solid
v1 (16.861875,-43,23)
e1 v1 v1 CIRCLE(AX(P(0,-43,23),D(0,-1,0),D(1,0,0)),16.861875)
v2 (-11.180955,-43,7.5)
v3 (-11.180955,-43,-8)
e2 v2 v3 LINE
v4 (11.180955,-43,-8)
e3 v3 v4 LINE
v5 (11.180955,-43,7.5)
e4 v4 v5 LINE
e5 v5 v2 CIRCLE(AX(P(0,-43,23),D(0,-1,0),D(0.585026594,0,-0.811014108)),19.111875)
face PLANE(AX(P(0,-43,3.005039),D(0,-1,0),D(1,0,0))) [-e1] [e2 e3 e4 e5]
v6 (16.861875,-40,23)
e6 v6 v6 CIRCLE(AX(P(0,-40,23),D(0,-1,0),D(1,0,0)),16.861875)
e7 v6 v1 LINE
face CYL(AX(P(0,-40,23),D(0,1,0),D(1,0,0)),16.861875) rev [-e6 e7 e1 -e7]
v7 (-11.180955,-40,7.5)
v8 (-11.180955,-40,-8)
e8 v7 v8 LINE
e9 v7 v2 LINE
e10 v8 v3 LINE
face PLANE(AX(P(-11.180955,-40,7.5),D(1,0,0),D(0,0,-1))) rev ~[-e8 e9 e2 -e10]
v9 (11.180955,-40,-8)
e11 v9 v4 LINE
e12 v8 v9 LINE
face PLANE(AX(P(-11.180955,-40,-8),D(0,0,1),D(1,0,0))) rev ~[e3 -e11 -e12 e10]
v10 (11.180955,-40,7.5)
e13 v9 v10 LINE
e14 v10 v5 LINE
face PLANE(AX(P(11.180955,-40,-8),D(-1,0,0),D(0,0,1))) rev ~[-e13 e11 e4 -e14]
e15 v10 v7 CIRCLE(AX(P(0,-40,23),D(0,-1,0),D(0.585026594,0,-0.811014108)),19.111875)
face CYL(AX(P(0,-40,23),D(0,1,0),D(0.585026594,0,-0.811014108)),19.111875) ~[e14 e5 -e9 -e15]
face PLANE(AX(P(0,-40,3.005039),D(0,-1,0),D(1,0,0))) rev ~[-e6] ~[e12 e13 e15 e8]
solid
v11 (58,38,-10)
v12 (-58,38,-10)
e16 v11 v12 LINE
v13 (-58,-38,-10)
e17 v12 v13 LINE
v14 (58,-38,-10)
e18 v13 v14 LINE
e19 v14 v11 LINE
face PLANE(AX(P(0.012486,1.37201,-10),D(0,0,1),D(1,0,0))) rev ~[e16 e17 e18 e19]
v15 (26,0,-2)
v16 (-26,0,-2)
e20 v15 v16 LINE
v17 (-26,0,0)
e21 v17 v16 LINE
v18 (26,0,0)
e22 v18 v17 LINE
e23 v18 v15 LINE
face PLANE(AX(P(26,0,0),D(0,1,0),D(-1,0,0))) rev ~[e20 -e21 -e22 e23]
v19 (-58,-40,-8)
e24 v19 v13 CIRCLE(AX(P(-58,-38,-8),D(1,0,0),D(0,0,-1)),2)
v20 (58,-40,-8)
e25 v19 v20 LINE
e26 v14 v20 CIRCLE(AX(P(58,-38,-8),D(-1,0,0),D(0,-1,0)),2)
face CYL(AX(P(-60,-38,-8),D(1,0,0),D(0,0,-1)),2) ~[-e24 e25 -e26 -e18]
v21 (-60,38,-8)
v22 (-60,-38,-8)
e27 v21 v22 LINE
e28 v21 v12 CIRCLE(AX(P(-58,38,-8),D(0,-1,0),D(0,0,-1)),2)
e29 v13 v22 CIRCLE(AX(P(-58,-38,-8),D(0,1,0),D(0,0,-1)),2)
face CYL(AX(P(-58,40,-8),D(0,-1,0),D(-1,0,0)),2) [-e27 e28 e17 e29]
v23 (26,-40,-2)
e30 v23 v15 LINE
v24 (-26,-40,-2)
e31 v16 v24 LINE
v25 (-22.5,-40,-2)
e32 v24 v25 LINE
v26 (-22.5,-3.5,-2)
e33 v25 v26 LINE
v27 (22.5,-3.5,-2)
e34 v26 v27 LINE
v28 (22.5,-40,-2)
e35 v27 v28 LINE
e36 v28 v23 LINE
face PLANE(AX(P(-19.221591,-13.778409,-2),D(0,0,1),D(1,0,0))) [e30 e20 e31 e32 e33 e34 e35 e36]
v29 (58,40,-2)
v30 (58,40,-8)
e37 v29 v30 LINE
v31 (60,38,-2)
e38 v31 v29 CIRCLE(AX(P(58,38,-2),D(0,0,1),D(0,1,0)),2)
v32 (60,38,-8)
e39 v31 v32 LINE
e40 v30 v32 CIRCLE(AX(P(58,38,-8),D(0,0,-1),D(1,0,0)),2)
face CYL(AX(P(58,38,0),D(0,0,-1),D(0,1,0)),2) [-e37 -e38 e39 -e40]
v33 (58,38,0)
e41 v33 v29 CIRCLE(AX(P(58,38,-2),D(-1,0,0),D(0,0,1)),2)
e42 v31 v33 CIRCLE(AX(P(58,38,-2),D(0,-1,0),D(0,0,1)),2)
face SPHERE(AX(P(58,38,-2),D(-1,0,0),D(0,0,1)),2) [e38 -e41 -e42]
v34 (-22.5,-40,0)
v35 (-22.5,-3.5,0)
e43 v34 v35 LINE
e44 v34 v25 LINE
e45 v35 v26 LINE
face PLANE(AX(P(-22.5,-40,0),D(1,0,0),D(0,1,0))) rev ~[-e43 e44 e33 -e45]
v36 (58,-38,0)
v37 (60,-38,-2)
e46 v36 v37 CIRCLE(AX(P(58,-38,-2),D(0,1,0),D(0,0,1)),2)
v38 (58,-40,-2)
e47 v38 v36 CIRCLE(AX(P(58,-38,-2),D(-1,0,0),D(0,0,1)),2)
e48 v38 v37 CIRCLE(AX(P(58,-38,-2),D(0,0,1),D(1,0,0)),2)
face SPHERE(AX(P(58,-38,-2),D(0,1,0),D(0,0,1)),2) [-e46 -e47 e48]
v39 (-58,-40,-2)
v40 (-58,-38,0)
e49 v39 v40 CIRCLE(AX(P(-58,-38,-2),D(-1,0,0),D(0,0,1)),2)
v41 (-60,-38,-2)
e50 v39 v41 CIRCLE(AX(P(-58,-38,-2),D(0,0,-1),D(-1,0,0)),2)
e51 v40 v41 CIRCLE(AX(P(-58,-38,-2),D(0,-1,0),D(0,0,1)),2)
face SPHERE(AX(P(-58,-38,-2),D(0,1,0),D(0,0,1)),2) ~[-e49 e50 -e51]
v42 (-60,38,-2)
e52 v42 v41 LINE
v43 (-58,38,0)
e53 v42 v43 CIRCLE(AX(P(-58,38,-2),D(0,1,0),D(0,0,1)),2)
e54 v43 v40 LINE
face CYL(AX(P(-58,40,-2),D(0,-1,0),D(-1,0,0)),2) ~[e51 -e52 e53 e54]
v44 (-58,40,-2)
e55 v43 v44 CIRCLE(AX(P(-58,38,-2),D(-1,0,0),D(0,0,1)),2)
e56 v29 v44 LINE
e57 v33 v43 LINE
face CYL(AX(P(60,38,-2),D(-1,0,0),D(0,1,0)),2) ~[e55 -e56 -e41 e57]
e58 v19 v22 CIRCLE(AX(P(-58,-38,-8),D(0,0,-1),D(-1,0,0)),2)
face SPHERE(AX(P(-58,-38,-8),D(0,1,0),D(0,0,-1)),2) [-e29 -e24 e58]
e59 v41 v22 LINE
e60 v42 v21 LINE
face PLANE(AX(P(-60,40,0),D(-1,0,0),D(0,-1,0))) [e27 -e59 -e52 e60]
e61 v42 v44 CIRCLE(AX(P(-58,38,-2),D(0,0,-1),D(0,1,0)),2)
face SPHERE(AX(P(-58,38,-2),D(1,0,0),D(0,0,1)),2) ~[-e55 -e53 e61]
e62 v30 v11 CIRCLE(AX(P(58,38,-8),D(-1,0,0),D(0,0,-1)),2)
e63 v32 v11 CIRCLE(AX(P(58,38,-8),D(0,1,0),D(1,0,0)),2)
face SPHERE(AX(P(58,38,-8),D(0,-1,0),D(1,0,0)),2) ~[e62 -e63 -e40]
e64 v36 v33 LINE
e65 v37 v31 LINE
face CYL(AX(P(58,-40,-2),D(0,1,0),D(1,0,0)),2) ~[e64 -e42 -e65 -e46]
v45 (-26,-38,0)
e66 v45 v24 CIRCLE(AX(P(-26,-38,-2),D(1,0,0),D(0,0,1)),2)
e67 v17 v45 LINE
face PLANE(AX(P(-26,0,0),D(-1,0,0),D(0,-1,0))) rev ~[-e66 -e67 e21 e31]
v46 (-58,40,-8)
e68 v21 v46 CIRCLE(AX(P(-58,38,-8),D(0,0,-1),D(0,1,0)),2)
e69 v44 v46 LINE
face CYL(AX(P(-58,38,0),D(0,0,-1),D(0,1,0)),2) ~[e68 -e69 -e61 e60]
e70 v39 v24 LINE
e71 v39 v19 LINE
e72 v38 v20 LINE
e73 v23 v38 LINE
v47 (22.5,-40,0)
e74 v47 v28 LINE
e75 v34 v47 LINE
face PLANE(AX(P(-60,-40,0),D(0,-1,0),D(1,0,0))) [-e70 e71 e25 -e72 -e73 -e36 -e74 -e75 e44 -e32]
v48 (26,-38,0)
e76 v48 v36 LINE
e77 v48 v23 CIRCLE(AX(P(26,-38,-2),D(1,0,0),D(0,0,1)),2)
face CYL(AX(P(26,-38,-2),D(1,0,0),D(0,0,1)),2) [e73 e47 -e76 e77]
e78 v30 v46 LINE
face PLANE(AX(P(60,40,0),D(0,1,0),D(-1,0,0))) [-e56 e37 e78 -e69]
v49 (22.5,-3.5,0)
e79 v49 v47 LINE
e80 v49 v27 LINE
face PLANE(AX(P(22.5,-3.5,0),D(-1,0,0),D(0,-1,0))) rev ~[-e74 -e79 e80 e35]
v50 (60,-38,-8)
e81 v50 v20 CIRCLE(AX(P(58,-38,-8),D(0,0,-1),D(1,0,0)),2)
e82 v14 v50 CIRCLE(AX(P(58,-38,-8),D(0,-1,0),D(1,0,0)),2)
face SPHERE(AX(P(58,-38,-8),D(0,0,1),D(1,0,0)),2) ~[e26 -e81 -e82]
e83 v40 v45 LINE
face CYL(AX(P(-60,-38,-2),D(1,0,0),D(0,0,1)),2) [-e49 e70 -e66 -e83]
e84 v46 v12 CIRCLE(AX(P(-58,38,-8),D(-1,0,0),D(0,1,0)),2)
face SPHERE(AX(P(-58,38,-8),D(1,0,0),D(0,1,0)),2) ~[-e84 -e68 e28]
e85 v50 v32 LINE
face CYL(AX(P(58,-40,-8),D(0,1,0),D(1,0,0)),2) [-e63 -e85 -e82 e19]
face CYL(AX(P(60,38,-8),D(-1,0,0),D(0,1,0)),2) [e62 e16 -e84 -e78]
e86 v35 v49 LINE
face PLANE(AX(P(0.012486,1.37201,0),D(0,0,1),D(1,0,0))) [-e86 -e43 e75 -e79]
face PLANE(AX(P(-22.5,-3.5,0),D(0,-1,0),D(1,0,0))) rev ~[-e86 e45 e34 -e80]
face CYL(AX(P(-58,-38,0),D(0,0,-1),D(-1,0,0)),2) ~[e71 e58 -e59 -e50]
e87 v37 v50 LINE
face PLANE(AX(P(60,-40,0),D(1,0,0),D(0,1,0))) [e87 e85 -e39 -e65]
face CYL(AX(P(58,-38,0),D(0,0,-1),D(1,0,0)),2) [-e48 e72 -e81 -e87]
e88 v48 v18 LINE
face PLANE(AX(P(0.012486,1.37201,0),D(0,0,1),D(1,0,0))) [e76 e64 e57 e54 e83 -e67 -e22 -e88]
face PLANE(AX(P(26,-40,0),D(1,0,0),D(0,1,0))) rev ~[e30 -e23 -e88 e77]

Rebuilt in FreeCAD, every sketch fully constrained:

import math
import FreeCAD as App
import Part
import Sketcher


def edges_at(feature, points):
    """Names of the edges that pass closest to the given points."""
    edges = feature.Shape.Edges
    near = lambda p: min(range(len(edges)), key=lambda i: edges[i].distToShape(Part.Vertex(*p))[0])
    return sorted({f"Edge{near(p) + 1}" for p in points})

doc = App.newDocument("Part")
params = doc.addObject("Spreadsheet::Sheet", "Params")
for row, (alias, value) in enumerate([
    ("sketch1_width", "120 mm"),
    ("sketch1_height", "80 mm"),
    ("pad1_length", "10 mm"),
    ("sketch2_width", "45 mm"),
    ("sketch2_width2", "52 mm"),
    ("sketch2_height", "40 mm"),
    ("sketch2_height2", "36.5 mm"),
    ("pocket1_length", "2 mm"),
    ("fillet_radius", "2 mm"),
    ("sketch3_height", "15.5 mm"),
    ("pad2_length", "3 mm"),
], start=1):
    params.set(f"A{row}", alias)
    params.set(f"B{row}", "=" + value)
    params.setAlias(f"B{row}", alias)

body = doc.addObject("PartDesign::Body", "Body")

# Sketch on XY plane
sketch1 = body.newObject("Sketcher::SketchObject", "Sketch")
sketch1.AttachmentSupport = (doc.getObject("XY_Plane"), [""])
sketch1.MapMode = "FlatFace"
sketch1.addGeometry([
    Part.LineSegment(App.Vector(60, 40, 0), App.Vector(-60, 40, 0)),
    Part.LineSegment(App.Vector(-60, 40, 0), App.Vector(-60, -40, 0)),
    Part.LineSegment(App.Vector(-60, -40, 0), App.Vector(60, -40, 0)),
    Part.LineSegment(App.Vector(60, -40, 0), App.Vector(60, 40, 0)),
], False)
sketch1.addConstraint([
    Sketcher.Constraint("Coincident", 0, 2, 1, 1),
    Sketcher.Constraint("Coincident", 1, 2, 2, 1),
    Sketcher.Constraint("Coincident", 2, 2, 3, 1),
    Sketcher.Constraint("Coincident", 3, 2, 0, 1),
    Sketcher.Constraint("Horizontal", 0),
    Sketcher.Constraint("Vertical", 1),
    Sketcher.Constraint("Horizontal", 2),
    Sketcher.Constraint("Vertical", 3),
    Sketcher.Constraint("Symmetric", 0, 2, 2, 2, -1, 1),
    Sketcher.Constraint("DistanceX", 0, 2, 0, 1, 120.0),
    Sketcher.Constraint("DistanceY", 1, 2, 1, 1, 80.0),
])
sketch1.setExpression("Constraints[9]", "Params.sketch1_width")
sketch1.setExpression("Constraints[10]", "Params.sketch1_height")
pad1 = body.newObject("PartDesign::Pad", "Pad")
pad1.Profile = sketch1
pad1.setExpression("Length", "Params.pad1_length")
pad1.Reversed = True

# Sketch on XY plane
sketch2 = body.newObject("Sketcher::SketchObject", "Sketch001")
sketch2.AttachmentSupport = (doc.getObject("XY_Plane"), [""])
sketch2.MapMode = "FlatFace"
sketch2.addGeometry([
    Part.LineSegment(App.Vector(-26, 0, 0), App.Vector(-26, -40, 0)),  # 0
    Part.LineSegment(App.Vector(-26, -40, 0), App.Vector(-22.5, -40, 0)),  # 1
    Part.LineSegment(App.Vector(-22.5, -40, 0), App.Vector(-22.5, -3.5, 0)),  # 2
    Part.LineSegment(App.Vector(-22.5, -3.5, 0), App.Vector(22.5, -3.5, 0)),  # 3
    Part.LineSegment(App.Vector(22.5, -3.5, 0), App.Vector(22.5, -40, 0)),  # 4
    Part.LineSegment(App.Vector(22.5, -40, 0), App.Vector(26, -40, 0)),  # 5
    Part.LineSegment(App.Vector(26, -40, 0), App.Vector(26, 0, 0)),  # 6
    Part.LineSegment(App.Vector(26, 0, 0), App.Vector(-26, 0, 0)),  # 7
], False)
sketch2.addConstraint([
    Sketcher.Constraint("Coincident", 0, 2, 1, 1),
    Sketcher.Constraint("Coincident", 1, 2, 2, 1),
    Sketcher.Constraint("Coincident", 2, 2, 3, 1),
    Sketcher.Constraint("Coincident", 3, 2, 4, 1),
    Sketcher.Constraint("Coincident", 4, 2, 5, 1),
    Sketcher.Constraint("Coincident", 5, 2, 6, 1),
    Sketcher.Constraint("Coincident", 6, 2, 7, 1),
    Sketcher.Constraint("Coincident", 7, 2, 0, 1),
    Sketcher.Constraint("Vertical", 0),
    Sketcher.Constraint("Horizontal", 1),
    Sketcher.Constraint("Vertical", 2),
    Sketcher.Constraint("Horizontal", 3),
    Sketcher.Constraint("Vertical", 4),
    Sketcher.Constraint("Horizontal", 5),
    Sketcher.Constraint("Vertical", 6),
    Sketcher.Constraint("Horizontal", 7),
    Sketcher.Constraint("Symmetric", 6, 2, 7, 2, -1, 1),
    Sketcher.Constraint("Symmetric", 1, 2, 4, 2, -2),
    Sketcher.Constraint("DistanceX", 3, 1, 3, 2, 45.0),
    Sketcher.Constraint("DistanceX", 7, 2, 7, 1, 52.0),
    Sketcher.Constraint("DistanceY", 0, 2, 0, 1, 40.0),
    Sketcher.Constraint("DistanceY", 2, 1, 2, 2, 36.5),
])
sketch2.setExpression("Constraints[18]", "Params.sketch2_width")
sketch2.setExpression("Constraints[19]", "Params.sketch2_width2")
sketch2.setExpression("Constraints[20]", "Params.sketch2_height")
sketch2.setExpression("Constraints[21]", "Params.sketch2_height2")
pocket1 = body.newObject("PartDesign::Pocket", "Pocket")
pocket1.Profile = sketch2
pocket1.setExpression("Length", "Params.pocket1_length")
doc.recompute()

fillet = body.newObject("PartDesign::Fillet", "Fillet")
fillet.Base = (pocket1, edges_at(pocket1, [
    (0, 40, 0),
    (-60, 0, 0),
    (60, 0, 0),
    (43, -40, 0),
    (-43, -40, 0),
    (60, -40, -5),
    (60, 0, -10),
    (60, 40, -5),
    (0, 40, -10),
    (-60, 40, -5),
    (-60, 0, -10),
    (0, -40, -10),
    (-60, -40, -5),
]))
fillet.setExpression("Radius", "Params.fillet_radius")
body2 = doc.addObject("PartDesign::Body", "Body001")

# Sketch on XZ plane
sketch3 = body2.newObject("Sketcher::SketchObject", "Sketch002")
sketch3.AttachmentSupport = (doc.getObject("XZ_Plane001"), [""])
sketch3.MapMode = "FlatFace"
sketch3.AttachmentOffset = App.Placement(App.Vector(0, 0, 40), App.Rotation())
sketch3.addGeometry([
    Part.LineSegment(App.Vector(-11, 8, 0), App.Vector(-11, -8, 0)),  # 0
    Part.LineSegment(App.Vector(-11, -8, 0), App.Vector(11, -8, 0)),  # 1
    Part.LineSegment(App.Vector(11, -8, 0), App.Vector(11, 8, 0)),  # 2
    Part.ArcOfCircle(Part.Circle(App.Vector(0, 23, 0), App.Vector(0, 0, 1), 19), math.radians(-54), math.radians(234)),  # 3
    Part.Circle(App.Vector(0, 23, 0), App.Vector(0, 0, 1), 17),  # 4
], False)
sketch3.addConstraint([
    Sketcher.Constraint("Coincident", 0, 2, 1, 1),
    Sketcher.Constraint("Coincident", 1, 2, 2, 1),
    Sketcher.Constraint("Coincident", 2, 2, 3, 1),
    Sketcher.Constraint("Coincident", 3, 2, 0, 1),
    Sketcher.Constraint("Vertical", 0),
    Sketcher.Constraint("Horizontal", 1),
    Sketcher.Constraint("Vertical", 2),
    Sketcher.Constraint("Coincident", 4, 3, 3, 3),
    Sketcher.Constraint("Symmetric", 2, 2, 3, 2, -2),
    Sketcher.Constraint("DistanceY", 0, 2, 0, 1, 15.5),
    Sketcher.Constraint("DistanceY", -1, 1, 3, 3, 23.0),
    Sketcher.Constraint("DistanceY", 0, 2, -1, 1, 8.0),
    Sketcher.Constraint("Diameter", 4, 33.723749),
    Sketcher.Constraint("Radius", 3, 19.111875),
])
sketch3.setExpression("Constraints[9]", "Params.sketch3_height")
pad2 = body2.newObject("PartDesign::Pad", "Pad001")
pad2.Profile = sketch3
pad2.setExpression("Length", "Params.pad2_length")

doc.recompute()
